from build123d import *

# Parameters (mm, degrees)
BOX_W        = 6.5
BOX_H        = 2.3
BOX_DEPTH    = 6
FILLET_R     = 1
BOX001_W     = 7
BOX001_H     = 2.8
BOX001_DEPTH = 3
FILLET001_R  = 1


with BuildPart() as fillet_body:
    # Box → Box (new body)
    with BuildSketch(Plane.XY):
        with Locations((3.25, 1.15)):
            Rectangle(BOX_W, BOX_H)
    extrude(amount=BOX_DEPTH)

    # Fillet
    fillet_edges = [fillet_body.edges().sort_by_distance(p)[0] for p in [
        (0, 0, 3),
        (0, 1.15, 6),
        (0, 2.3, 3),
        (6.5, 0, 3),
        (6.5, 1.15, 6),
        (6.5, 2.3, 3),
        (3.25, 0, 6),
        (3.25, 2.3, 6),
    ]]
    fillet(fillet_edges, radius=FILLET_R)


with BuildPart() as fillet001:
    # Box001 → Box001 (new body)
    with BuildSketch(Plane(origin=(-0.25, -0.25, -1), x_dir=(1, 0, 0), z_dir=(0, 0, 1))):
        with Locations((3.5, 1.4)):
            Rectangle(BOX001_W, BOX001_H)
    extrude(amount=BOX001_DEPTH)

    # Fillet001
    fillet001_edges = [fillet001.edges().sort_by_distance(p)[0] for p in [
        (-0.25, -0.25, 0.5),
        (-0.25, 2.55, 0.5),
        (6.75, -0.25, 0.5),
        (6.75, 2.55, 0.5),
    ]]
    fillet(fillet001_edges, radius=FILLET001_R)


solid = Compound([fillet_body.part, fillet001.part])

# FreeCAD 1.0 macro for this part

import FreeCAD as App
import Part
import Sketcher


def edges_at(feature, points):
    """Names of the edges that pass closest to the given points."""
    edges = feature.Shape.Edges
    near = lambda p: min(range(len(edges)), key=lambda i: edges[i].distToShape(Part.Vertex(*p))[0])
    return sorted({f"Edge{near(p) + 1}" for p in points})


def add_polygon(sketch, points):
    """Adds a closed chain of lines whose ends are joined by coincident constraints."""
    first, n = sketch.GeometryCount, len(points)
    for a, b in zip(points, points[1:] + points[:1]):
        sketch.addGeometry(Part.LineSegment(App.Vector(*a, 0), App.Vector(*b, 0)), False)
    for i in range(n):
        sketch.addConstraint(Sketcher.Constraint("Coincident", first + i, 2, first + (i + 1) % n, 1))

doc = App.newDocument("Part")
body = doc.addObject("PartDesign::Body", "Body")

sketch1 = body.newObject("Sketcher::SketchObject", "Sketch")
sketch1.AttachmentSupport = (doc.getObject("XY_Plane"), [""])
sketch1.MapMode = "FlatFace"
add_polygon(sketch1, [(0, 2.3), (0, 0), (6.5, 0), (6.5, 2.3)])
sketch1.addConstraint(Sketcher.Constraint("Vertical", 0))
sketch1.addConstraint(Sketcher.Constraint("Horizontal", 1))
sketch1.addConstraint(Sketcher.Constraint("Vertical", 2))
sketch1.addConstraint(Sketcher.Constraint("Horizontal", 3))
sketch1.addConstraint(Sketcher.Constraint("Coincident", 0, 2, -1, 1))
sketch1.addConstraint(Sketcher.Constraint("DistanceX", 1, 1, 1, 2, 6.5))
sketch1.addConstraint(Sketcher.Constraint("DistanceY", 0, 2, 0, 1, 2.3))
pad1 = body.newObject("PartDesign::Pad", "Pad")
pad1.Profile = sketch1
pad1.Length = 6
doc.recompute()

fillet = body.newObject("PartDesign::Fillet", "Fillet")
fillet.Base = (pad1, edges_at(pad1, [
    (0, 0, 3),
    (0, 1.15, 6),
    (0, 2.3, 3),
    (6.5, 0, 3),
    (6.5, 1.15, 6),
    (6.5, 2.3, 3),
    (3.25, 0, 6),
    (3.25, 2.3, 6),
]))
fillet.Radius = 1
body2 = doc.addObject("PartDesign::Body", "Body001")

sketch2 = body2.newObject("Sketcher::SketchObject", "Sketch001")
sketch2.AttachmentSupport = (doc.getObject("XY_Plane001"), [""])
sketch2.MapMode = "FlatFace"
sketch2.AttachmentOffset = App.Placement(App.Vector(0, 0, -1), App.Rotation())
add_polygon(sketch2, [(-0.2, 2.5), (-0.2, -0.2), (6.8, -0.2), (6.8, 2.5)])
sketch2.addConstraint(Sketcher.Constraint("Vertical", 0))
sketch2.addConstraint(Sketcher.Constraint("Horizontal", 1))
sketch2.addConstraint(Sketcher.Constraint("Vertical", 2))
sketch2.addConstraint(Sketcher.Constraint("Horizontal", 3))
sketch2.addConstraint(Sketcher.Constraint("DistanceX", 1, 1, 1, 2, 7.0))
sketch2.addConstraint(Sketcher.Constraint("DistanceY", 0, 2, 0, 1, 2.8))
sketch2.addConstraint(Sketcher.Constraint("DistanceX", 0, 2, -1, 1, 0.25))
sketch2.addConstraint(Sketcher.Constraint("DistanceY", 0, 2, -1, 1, 0.25))
pad2 = body2.newObject("PartDesign::Pad", "Pad001")
pad2.Profile = sketch2
pad2.Length = 3
doc.recompute()

fillet2 = body2.newObject("PartDesign::Fillet", "Fillet001")
fillet2.Base = (pad2, edges_at(pad2, [
    (-0.25, -0.25, 0.5),
    (-0.25, 2.55, 0.5),
    (6.75, -0.25, 0.5),
    (6.75, 2.55, 0.5),
]))
fillet2.Radius = 1

doc.recompute()
